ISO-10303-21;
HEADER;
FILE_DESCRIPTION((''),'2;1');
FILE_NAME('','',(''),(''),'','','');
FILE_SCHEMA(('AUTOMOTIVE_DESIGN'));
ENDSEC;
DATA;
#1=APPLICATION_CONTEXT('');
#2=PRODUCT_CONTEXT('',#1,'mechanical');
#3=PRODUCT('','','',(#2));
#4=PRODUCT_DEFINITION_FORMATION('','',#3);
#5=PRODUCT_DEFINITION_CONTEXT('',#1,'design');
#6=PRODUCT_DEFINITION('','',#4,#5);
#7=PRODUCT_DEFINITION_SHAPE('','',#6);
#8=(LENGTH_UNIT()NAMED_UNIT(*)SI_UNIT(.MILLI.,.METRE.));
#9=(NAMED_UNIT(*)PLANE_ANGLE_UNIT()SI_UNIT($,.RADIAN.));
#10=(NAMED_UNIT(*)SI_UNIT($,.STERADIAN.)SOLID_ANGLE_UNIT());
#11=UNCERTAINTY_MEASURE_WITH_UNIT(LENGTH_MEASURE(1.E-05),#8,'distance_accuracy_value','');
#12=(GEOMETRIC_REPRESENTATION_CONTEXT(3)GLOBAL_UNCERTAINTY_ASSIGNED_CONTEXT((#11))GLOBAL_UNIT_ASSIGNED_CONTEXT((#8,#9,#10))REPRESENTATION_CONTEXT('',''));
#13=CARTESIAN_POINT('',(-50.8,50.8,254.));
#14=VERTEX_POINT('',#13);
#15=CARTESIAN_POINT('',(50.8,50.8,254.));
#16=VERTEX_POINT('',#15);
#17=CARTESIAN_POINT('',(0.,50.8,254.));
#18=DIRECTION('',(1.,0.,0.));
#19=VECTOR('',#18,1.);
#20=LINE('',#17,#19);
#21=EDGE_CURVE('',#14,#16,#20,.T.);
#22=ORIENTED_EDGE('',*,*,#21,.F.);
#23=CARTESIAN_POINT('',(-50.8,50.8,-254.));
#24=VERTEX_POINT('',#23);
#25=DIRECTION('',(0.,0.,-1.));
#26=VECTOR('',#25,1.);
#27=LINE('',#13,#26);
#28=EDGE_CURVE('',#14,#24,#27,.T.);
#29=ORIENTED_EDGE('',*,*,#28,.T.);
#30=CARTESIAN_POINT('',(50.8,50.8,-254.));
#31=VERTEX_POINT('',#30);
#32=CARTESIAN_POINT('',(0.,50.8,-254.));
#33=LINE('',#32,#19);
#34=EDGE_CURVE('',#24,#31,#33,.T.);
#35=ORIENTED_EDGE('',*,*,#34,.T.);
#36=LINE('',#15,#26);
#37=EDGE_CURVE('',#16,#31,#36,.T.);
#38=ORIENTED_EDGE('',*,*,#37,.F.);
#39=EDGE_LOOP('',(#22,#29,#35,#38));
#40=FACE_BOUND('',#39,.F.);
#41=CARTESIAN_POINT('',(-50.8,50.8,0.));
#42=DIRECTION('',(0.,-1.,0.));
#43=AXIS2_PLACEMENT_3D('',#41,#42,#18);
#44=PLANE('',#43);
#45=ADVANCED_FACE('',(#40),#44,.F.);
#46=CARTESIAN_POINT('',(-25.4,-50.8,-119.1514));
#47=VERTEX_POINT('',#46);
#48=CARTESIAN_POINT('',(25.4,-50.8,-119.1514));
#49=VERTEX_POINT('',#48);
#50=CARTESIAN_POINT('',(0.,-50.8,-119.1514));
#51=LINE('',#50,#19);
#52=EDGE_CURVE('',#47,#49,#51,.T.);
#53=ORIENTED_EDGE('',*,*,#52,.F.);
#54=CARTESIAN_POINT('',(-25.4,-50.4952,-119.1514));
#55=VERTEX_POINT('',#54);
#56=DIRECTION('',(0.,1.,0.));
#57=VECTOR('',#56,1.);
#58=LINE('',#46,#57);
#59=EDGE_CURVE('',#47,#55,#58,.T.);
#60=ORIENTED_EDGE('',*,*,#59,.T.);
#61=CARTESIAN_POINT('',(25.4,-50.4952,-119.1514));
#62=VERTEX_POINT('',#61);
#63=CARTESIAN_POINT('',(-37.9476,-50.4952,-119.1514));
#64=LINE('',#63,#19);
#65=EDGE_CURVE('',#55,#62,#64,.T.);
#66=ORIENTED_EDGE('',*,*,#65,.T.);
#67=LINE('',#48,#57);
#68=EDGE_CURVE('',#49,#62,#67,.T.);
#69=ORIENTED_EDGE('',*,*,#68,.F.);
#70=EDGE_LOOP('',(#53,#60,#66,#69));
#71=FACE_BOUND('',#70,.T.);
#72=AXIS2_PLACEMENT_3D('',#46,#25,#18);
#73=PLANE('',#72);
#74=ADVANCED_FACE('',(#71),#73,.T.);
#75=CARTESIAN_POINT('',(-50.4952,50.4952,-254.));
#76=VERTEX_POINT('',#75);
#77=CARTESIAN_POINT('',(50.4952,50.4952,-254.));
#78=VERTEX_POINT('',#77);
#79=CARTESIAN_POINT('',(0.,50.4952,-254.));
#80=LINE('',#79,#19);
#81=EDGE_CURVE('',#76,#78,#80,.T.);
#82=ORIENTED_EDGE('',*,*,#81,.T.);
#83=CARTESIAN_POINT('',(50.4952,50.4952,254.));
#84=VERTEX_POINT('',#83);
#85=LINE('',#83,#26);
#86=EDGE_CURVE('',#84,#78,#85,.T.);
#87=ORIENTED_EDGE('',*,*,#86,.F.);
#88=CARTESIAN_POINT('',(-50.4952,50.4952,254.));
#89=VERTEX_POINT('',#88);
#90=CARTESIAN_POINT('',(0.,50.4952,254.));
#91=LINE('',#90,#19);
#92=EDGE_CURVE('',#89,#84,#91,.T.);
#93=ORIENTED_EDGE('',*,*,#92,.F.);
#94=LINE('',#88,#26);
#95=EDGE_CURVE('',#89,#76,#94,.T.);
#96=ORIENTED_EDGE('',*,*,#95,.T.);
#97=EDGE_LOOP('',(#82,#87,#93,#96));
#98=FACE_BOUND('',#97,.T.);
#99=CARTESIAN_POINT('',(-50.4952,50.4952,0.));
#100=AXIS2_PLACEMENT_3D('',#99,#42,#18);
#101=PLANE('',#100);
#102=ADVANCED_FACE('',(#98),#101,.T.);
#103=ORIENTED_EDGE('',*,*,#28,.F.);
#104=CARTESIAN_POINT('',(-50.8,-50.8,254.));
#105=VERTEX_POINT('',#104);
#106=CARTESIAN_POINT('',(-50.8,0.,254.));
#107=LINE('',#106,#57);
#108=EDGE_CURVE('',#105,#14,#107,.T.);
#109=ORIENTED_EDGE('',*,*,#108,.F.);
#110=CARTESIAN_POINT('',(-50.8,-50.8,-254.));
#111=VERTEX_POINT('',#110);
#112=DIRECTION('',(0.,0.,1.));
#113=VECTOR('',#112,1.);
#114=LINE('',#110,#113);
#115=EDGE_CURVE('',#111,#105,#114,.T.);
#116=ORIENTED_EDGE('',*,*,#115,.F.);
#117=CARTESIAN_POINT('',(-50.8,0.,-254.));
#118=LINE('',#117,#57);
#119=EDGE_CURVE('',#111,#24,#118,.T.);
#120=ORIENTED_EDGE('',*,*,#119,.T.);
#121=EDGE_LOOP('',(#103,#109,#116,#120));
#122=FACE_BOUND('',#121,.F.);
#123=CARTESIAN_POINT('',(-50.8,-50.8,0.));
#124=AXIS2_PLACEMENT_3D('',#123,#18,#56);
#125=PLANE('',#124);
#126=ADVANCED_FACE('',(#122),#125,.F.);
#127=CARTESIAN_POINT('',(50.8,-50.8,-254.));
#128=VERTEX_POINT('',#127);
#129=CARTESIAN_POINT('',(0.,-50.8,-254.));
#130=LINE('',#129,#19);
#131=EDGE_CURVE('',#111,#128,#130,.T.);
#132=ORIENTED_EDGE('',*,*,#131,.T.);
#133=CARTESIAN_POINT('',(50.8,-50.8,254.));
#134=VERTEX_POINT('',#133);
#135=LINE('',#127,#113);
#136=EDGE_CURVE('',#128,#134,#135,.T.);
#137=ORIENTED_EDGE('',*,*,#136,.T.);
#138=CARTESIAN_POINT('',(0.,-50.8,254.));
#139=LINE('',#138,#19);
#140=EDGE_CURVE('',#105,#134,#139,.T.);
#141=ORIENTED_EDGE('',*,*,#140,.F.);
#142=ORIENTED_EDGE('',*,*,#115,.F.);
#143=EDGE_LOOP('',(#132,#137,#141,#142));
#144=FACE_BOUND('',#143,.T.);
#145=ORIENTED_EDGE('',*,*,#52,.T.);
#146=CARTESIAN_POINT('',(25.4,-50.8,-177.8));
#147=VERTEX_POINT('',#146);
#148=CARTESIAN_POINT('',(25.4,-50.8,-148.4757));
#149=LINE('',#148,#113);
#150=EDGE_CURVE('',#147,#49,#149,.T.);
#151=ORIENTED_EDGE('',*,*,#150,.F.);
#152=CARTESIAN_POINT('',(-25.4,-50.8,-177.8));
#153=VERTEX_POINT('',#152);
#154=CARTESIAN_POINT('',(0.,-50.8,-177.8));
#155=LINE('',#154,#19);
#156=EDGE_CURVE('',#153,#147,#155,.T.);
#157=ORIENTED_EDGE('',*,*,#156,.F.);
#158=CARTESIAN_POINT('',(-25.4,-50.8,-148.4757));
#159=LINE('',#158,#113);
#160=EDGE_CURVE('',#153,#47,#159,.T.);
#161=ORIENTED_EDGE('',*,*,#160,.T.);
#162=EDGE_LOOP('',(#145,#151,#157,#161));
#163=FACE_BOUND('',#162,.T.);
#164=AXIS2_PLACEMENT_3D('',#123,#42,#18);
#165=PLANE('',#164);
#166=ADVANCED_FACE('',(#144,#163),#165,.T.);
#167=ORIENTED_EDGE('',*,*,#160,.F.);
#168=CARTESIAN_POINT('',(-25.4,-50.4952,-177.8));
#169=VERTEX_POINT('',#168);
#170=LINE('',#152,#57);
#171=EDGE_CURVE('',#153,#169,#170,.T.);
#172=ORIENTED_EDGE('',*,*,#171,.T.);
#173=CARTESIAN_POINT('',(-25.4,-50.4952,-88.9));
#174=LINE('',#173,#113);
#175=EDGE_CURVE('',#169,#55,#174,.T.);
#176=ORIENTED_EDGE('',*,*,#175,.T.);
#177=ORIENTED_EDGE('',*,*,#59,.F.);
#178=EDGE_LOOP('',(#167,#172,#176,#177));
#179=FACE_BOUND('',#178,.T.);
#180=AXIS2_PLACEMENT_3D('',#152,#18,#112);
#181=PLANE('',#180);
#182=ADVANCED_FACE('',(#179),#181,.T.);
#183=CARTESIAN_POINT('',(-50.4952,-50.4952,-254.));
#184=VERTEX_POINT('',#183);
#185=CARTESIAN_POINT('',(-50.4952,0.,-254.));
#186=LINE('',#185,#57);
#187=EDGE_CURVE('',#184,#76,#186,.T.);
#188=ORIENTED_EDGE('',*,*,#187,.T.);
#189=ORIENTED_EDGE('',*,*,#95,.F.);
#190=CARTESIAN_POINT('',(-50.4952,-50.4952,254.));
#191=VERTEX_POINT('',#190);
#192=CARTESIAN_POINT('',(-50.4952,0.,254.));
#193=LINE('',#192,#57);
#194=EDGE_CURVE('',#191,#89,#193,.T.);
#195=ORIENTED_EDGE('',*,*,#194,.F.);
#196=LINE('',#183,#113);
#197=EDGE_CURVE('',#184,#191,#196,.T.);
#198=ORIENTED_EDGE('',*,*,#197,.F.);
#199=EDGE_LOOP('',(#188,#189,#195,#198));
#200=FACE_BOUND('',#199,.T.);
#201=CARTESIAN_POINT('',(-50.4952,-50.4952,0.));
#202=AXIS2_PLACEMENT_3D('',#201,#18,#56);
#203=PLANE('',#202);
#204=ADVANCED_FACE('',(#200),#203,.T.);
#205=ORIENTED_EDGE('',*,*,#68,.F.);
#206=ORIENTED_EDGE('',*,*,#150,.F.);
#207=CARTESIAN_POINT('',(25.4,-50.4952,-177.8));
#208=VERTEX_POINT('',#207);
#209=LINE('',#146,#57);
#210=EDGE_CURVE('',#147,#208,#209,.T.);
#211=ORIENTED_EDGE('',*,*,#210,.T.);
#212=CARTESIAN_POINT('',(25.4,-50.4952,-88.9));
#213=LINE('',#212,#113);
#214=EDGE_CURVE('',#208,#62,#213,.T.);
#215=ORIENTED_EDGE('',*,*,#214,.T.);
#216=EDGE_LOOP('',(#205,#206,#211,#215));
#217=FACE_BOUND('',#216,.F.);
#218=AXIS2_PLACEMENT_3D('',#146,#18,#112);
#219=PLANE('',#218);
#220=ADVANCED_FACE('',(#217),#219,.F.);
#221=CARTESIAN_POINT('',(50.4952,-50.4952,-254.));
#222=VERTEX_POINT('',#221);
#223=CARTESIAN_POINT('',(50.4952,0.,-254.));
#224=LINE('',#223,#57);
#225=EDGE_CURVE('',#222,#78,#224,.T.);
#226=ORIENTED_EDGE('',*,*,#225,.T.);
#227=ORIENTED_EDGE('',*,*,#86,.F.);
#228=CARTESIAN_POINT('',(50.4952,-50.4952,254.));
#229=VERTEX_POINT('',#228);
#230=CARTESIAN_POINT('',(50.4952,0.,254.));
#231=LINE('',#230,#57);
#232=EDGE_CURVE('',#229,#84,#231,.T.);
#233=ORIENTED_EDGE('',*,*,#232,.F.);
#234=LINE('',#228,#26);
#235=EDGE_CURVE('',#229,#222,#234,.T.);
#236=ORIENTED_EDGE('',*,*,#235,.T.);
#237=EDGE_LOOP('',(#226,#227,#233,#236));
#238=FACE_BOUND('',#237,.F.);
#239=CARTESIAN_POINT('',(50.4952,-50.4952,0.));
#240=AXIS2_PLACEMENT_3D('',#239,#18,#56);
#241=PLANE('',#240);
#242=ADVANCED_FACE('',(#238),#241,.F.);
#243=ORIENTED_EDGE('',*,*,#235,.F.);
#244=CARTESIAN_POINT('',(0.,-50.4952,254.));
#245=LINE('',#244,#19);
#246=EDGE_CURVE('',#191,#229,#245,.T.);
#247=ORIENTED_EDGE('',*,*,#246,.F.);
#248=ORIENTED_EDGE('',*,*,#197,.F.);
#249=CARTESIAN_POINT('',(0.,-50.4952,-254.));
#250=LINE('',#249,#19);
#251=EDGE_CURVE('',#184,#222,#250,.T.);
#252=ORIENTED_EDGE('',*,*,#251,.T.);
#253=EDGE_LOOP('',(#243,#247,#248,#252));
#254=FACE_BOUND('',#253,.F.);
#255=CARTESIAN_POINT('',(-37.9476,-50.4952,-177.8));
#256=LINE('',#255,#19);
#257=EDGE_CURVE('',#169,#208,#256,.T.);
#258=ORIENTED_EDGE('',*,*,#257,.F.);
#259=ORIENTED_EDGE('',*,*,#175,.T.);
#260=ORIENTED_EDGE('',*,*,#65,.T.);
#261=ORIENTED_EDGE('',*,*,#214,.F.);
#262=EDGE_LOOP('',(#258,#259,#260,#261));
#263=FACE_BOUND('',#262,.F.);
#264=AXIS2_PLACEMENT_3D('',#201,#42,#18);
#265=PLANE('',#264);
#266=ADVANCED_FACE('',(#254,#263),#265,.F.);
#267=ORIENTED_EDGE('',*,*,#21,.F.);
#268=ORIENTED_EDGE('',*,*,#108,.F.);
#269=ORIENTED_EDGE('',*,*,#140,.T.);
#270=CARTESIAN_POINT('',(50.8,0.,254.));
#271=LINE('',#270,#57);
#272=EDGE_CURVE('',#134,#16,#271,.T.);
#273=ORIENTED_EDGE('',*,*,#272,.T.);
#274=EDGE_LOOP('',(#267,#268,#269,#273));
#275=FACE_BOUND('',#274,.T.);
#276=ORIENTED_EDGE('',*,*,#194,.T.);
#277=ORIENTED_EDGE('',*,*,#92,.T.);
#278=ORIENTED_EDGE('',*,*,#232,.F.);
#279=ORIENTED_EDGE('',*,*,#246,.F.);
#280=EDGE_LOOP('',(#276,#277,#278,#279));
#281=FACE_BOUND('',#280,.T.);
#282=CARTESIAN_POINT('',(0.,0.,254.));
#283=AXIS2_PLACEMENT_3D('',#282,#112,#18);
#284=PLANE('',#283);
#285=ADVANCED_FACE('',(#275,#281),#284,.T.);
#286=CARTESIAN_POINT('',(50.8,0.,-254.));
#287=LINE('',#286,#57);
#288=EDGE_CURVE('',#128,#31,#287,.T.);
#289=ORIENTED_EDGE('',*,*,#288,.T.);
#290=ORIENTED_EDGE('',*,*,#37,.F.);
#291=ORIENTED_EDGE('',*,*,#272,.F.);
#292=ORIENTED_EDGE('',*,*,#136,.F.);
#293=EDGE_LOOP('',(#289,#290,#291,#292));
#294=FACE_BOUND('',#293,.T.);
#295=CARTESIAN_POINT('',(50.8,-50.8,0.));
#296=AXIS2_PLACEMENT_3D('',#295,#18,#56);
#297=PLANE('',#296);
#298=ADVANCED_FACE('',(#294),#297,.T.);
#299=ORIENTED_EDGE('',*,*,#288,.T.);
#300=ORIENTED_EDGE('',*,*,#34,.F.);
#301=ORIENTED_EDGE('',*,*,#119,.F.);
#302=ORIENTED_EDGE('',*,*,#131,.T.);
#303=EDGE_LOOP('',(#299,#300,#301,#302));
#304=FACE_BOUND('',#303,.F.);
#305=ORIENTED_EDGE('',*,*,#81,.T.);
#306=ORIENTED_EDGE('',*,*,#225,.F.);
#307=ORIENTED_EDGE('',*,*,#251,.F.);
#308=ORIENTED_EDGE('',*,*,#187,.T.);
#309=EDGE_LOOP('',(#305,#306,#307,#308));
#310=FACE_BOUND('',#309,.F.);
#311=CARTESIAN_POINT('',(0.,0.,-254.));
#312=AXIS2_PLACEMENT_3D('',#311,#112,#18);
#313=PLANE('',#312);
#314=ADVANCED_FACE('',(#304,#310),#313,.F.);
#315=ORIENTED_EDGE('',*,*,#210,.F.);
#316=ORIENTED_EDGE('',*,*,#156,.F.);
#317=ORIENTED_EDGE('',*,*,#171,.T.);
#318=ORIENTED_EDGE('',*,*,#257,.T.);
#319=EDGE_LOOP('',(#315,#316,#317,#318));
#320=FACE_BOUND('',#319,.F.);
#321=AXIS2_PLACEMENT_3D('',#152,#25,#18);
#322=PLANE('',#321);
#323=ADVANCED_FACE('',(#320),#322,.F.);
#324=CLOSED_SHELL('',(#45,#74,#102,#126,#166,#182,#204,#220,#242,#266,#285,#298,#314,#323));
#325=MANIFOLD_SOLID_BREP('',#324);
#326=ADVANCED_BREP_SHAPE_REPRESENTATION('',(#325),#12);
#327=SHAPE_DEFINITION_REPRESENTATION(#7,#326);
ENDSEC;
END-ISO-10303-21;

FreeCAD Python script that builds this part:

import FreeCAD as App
import Part
import Sketcher
Q = App.Units.Quantity

doc = App.newDocument("Part")
body = doc.addObject("PartDesign::Body", "Body")

# Sketch on XY plane
sketch1 = doc.addObject("Sketcher::SketchObject", "Sketch")
body.addObject(sketch1)
sketch1.AttachmentSupport = (doc.XY_Plane, [""])
sketch1.MapMode = "FlatFace"
sketch1.addGeometry([
    Part.LineSegment(App.Vector(-51, 51, 0), App.Vector(-51, -51, 0)),  # 0
    Part.LineSegment(App.Vector(-51, -51, 0), App.Vector(51, -51, 0)),  # 1
    Part.LineSegment(App.Vector(51, -51, 0), App.Vector(51, 51, 0)),  # 2
    Part.LineSegment(App.Vector(51, 51, 0), App.Vector(-51, 51, 0)),  # 3
    Part.LineSegment(App.Vector(50, -50, 0), App.Vector(-50, -50, 0)),  # 4
    Part.LineSegment(App.Vector(-50, -50, 0), App.Vector(-50, 50, 0)),  # 5
    Part.LineSegment(App.Vector(-50, 50, 0), App.Vector(50, 50, 0)),  # 6
    Part.LineSegment(App.Vector(50, 50, 0), App.Vector(50, -50, 0)),  # 7
], False)
sketch1.addConstraint([
    Sketcher.Constraint("Coincident", 0, 2, 1, 1),
    Sketcher.Constraint("Coincident", 1, 2, 2, 1),
    Sketcher.Constraint("Coincident", 2, 2, 3, 1),
    Sketcher.Constraint("Coincident", 3, 2, 0, 1),
    Sketcher.Constraint("Coincident", 4, 2, 5, 1),
    Sketcher.Constraint("Coincident", 5, 2, 6, 1),
    Sketcher.Constraint("Coincident", 6, 2, 7, 1),
    Sketcher.Constraint("Coincident", 7, 2, 4, 1),
    Sketcher.Constraint("Vertical", 0),
    Sketcher.Constraint("Horizontal", 1),
    Sketcher.Constraint("Vertical", 2),
    Sketcher.Constraint("Horizontal", 3),
    Sketcher.Constraint("Horizontal", 4),
    Sketcher.Constraint("Vertical", 5),
    Sketcher.Constraint("Horizontal", 6),
    Sketcher.Constraint("Vertical", 7),
    Sketcher.Constraint("Symmetric", 0, 2, 2, 2, -1, 1),
    Sketcher.Constraint("Symmetric", 4, 2, 6, 2, -1, 1),
    Sketcher.Constraint("Equal", 3, 0),
    Sketcher.Constraint("Equal", 6, 5),
    Sketcher.Constraint("DistanceX", 1, 1, 1, 2, Q("4 in")),
    Sketcher.Constraint("DistanceX", 4, 2, 4, 1, Q("3.976 in")),
])
pad1 = doc.addObject("PartDesign::Pad", "Pad")
body.addObject(pad1)
pad1.Profile = sketch1
pad1.Length = Q("20 in")
pad1.Midplane = True

# Sketch on XY plane
sketch2 = doc.addObject("Sketcher::SketchObject", "Sketch001")
body.addObject(sketch2)
sketch2.AttachmentSupport = (doc.XY_Plane, [""])
sketch2.MapMode = "FlatFace"
sketch2.addGeometry([
    Part.LineSegment(App.Vector(-50, 50, 0), App.Vector(-50, -50, 0)),
    Part.LineSegment(App.Vector(-50, -50, 0), App.Vector(50, -50, 0)),
    Part.LineSegment(App.Vector(50, -50, 0), App.Vector(50, 50, 0)),
    Part.LineSegment(App.Vector(50, 50, 0), App.Vector(-50, 50, 0)),
], False)
sketch2.addConstraint([
    Sketcher.Constraint("Coincident", 0, 2, 1, 1),
    Sketcher.Constraint("Coincident", 1, 2, 2, 1),
    Sketcher.Constraint("Coincident", 2, 2, 3, 1),
    Sketcher.Constraint("Coincident", 3, 2, 0, 1),
    Sketcher.Constraint("Vertical", 0),
    Sketcher.Constraint("Horizontal", 1),
    Sketcher.Constraint("Vertical", 2),
    Sketcher.Constraint("Horizontal", 3),
    Sketcher.Constraint("Symmetric", 0, 2, 2, 2, -1, 1),
    Sketcher.Constraint("Equal", 3, 0),
    Sketcher.Constraint("DistanceX", 1, 1, 1, 2, Q("3.976 in")),
])
pocket1 = doc.addObject("PartDesign::Pocket", "Pocket")
body.addObject(pocket1)
pocket1.Profile = sketch2
pocket1.Length = Q("20 in")
pocket1.Midplane = True

# Sketch on XZ plane
sketch3 = doc.addObject("Sketcher::SketchObject", "Sketch002")
body.addObject(sketch3)
sketch3.AttachmentSupport = (doc.XZ_Plane, [""])
sketch3.MapMode = "FlatFace"
sketch3.AttachmentOffset = App.Placement(App.Vector(0, 0, 2 * 25.4), App.Rotation())
sketch3.addGeometry([
    Part.LineSegment(App.Vector(-25, -119, 0), App.Vector(-25, -178, 0)),
    Part.LineSegment(App.Vector(-25, -178, 0), App.Vector(25, -178, 0)),
    Part.LineSegment(App.Vector(25, -178, 0), App.Vector(25, -119, 0)),
    Part.LineSegment(App.Vector(25, -119, 0), App.Vector(-25, -119, 0)),
], False)
sketch3.addConstraint([
    Sketcher.Constraint("Coincident", 0, 2, 1, 1),
    Sketcher.Constraint("Coincident", 1, 2, 2, 1),
    Sketcher.Constraint("Coincident", 2, 2, 3, 1),
    Sketcher.Constraint("Coincident", 3, 2, 0, 1),
    Sketcher.Constraint("Vertical", 0),
    Sketcher.Constraint("Horizontal", 1),
    Sketcher.Constraint("Vertical", 2),
    Sketcher.Constraint("Horizontal", 3),
    Sketcher.Constraint("DistanceX", 1, 1, 1, 2, Q("2 in")),
    Sketcher.Constraint("DistanceX", 0, 2, -1, 1, Q("1 in")),
    Sketcher.Constraint("DistanceY", 0, 2, -1, 1, Q("7 in")),
    Sketcher.Constraint("DistanceY", 0, 2, 0, 1, Q("2.309 in")),
])
pocket2 = doc.addObject("PartDesign::Pocket", "Pocket001")
body.addObject(pocket2)
pocket2.Profile = sketch3
pocket2.Length = Q("0.0129 in")

doc.recompute()
